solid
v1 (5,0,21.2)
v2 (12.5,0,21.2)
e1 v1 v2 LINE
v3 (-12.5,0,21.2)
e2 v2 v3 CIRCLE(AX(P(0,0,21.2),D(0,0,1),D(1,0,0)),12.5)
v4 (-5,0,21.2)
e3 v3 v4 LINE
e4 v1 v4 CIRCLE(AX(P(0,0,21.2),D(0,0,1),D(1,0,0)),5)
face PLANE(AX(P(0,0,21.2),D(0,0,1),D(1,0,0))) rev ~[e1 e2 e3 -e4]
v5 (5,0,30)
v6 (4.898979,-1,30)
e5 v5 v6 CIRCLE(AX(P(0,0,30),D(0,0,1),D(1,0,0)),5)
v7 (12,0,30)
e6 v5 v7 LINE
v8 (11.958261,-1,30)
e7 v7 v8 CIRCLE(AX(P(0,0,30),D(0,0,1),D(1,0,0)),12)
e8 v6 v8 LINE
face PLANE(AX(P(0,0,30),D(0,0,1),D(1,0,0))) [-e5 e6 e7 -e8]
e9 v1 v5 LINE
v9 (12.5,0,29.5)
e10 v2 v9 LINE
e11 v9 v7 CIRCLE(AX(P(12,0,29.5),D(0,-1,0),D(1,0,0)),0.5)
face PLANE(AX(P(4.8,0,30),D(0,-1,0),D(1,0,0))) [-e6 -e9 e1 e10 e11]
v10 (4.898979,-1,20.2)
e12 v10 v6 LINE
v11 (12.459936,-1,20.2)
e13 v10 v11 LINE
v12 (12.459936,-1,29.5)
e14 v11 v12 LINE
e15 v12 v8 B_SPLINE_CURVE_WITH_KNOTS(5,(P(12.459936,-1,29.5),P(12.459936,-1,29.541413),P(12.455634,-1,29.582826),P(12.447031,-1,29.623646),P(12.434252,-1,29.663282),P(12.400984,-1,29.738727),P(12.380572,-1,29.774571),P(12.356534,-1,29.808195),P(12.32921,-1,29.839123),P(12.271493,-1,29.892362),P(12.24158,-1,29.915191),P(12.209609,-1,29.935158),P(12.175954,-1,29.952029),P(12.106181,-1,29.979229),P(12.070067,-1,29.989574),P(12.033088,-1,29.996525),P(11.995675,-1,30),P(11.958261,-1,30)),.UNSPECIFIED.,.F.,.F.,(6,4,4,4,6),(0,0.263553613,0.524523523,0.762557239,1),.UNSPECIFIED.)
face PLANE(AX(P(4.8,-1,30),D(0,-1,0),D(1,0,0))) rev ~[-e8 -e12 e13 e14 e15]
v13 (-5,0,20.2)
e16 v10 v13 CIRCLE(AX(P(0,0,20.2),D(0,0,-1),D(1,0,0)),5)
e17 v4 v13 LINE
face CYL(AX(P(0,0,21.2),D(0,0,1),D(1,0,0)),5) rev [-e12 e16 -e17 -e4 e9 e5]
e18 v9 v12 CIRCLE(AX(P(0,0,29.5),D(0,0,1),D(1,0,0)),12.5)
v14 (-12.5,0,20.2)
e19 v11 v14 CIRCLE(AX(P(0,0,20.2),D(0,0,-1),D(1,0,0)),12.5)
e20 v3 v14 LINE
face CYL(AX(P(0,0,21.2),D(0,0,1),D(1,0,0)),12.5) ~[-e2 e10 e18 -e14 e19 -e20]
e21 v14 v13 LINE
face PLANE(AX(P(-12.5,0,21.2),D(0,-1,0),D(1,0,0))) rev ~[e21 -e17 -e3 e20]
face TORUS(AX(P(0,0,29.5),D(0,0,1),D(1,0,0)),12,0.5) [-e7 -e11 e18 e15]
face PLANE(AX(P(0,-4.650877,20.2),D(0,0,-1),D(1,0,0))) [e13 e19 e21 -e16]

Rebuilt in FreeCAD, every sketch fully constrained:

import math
import FreeCAD as App
import Part
import Sketcher


def edges_at(feature, points):
    """Names of the edges that pass closest to the given points."""
    edges = feature.Shape.Edges
    near = lambda p: min(range(len(edges)), key=lambda i: edges[i].distToShape(Part.Vertex(*p))[0])
    return sorted({f"Edge{near(p) + 1}" for p in points})


def add_polygon(sketch, points):
    """Adds a closed chain of lines whose ends are joined by coincident constraints."""
    first, n = sketch.GeometryCount, len(points)
    for a, b in zip(points, points[1:] + points[:1]):
        sketch.addGeometry(Part.LineSegment(App.Vector(*a, 0), App.Vector(*b, 0)), False)
    for i in range(n):
        sketch.addConstraint(Sketcher.Constraint("Coincident", first + i, 2, first + (i + 1) % n, 1))

doc = App.newDocument("Part")
params = doc.addObject("Spreadsheet::Sheet", "Params")
for row, (alias, value) in enumerate([
    ("sketch1_diameter", "25 mm"),
    ("sketch1_diameter2", "10 mm"),
    ("pad1_length", "8.8 mm"),
    ("sketch2_radius", "5 mm"),
    ("sketch2_radius2", "12.5 mm"),
    ("pad2_length", "1 mm"),
    ("fillet_radius", "0.5 mm"),
    ("sketch3_height", "1 mm"),
    ("sketch3_width", "7.8 mm"),
    ("pocket1_length", "9.8 mm"),
], start=1):
    params.set(f"A{row}", alias)
    params.set(f"B{row}", "=" + value)
    params.setAlias(f"B{row}", alias)

body = doc.addObject("PartDesign::Body", "Body")

# Sketch on XY plane
sketch1 = doc.addObject("Sketcher::SketchObject", "Sketch")
body.addObject(sketch1)
sketch1.AttachmentSupport = (doc.XY_Plane, [""])
sketch1.MapMode = "FlatFace"
sketch1.AttachmentOffset = App.Placement(App.Vector(0, 0, 21.2), App.Rotation())
sketch1.addGeometry(Part.Circle(App.Vector(0, 0, 0), App.Vector(0, 0, 1), 12), False)
sketch1.addGeometry(Part.Circle(App.Vector(0, 0, 0), App.Vector(0, 0, 1), 5), False)
sketch1.addConstraint(Sketcher.Constraint("Coincident", 0, 3, -1, 1))
sketch1.addConstraint(Sketcher.Constraint("Coincident", 1, 3, -1, 1))
sketch1.addConstraint(Sketcher.Constraint("Diameter", 0, 25.0))
sketch1.addConstraint(Sketcher.Constraint("Diameter", 1, 10.0))
sketch1.setExpression("Constraints[2]", "Params.sketch1_diameter")
sketch1.setExpression("Constraints[3]", "Params.sketch1_diameter2")
pad1 = doc.addObject("PartDesign::Pad", "Pad")
body.addObject(pad1)
pad1.Profile = sketch1
pad1.setExpression("Length", "Params.pad1_length")

# Sketch on XY plane
sketch2 = doc.addObject("Sketcher::SketchObject", "Sketch001")
body.addObject(sketch2)
sketch2.AttachmentSupport = (doc.XY_Plane, [""])
sketch2.MapMode = "FlatFace"
sketch2.AttachmentOffset = App.Placement(App.Vector(0, 0, 21.2), App.Rotation())
sketch2.addGeometry(Part.ArcOfCircle(Part.Circle(App.Vector(0, 0, 0), App.Vector(0, 0, 1), 12), math.radians(180), math.radians(360)), False)
sketch2.addGeometry(Part.LineSegment(App.Vector(-12, 0, 0), App.Vector(-5, 0, 0)), False)
sketch2.addGeometry(Part.ArcOfCircle(Part.Circle(App.Vector(0, 0, 0), App.Vector(0, 0, 1), 5), math.radians(180), math.radians(360)), False)
sketch2.addGeometry(Part.LineSegment(App.Vector(5, 0, 0), App.Vector(12, 0, 0)), False)
sketch2.addConstraint(Sketcher.Constraint("Coincident", 0, 1, 1, 1))
sketch2.addConstraint(Sketcher.Constraint("Coincident", 1, 2, 2, 1))
sketch2.addConstraint(Sketcher.Constraint("Coincident", 2, 2, 3, 1))
sketch2.addConstraint(Sketcher.Constraint("Coincident", 3, 2, 0, 2))
sketch2.addConstraint(Sketcher.Constraint("Horizontal", 1))
sketch2.addConstraint(Sketcher.Constraint("Horizontal", 3))
sketch2.addConstraint(Sketcher.Constraint("Coincident", 0, 3, -1, 1))
sketch2.addConstraint(Sketcher.Constraint("Coincident", 2, 3, -1, 1))
sketch2.addConstraint(Sketcher.Constraint("PointOnObject", 0, 1, -1))
sketch2.addConstraint(Sketcher.Constraint("PointOnObject", 2, 2, -1))
sketch2.addConstraint(Sketcher.Constraint("Radius", 2, 5.0))
sketch2.addConstraint(Sketcher.Constraint("Radius", 0, 12.5))
sketch2.setExpression("Constraints[10]", "Params.sketch2_radius")
sketch2.setExpression("Constraints[11]", "Params.sketch2_radius2")
pad2 = doc.addObject("PartDesign::Pad", "Pad001")
body.addObject(pad2)
pad2.Profile = sketch2
pad2.setExpression("Length", "Params.pad2_length")
pad2.Reversed = True
doc.recompute()

fillet = doc.addObject("PartDesign::Fillet", "Fillet")
body.addObject(fillet)
fillet.Base = (pad2, edges_at(pad2, [(-12.5, 0, 30)]))
fillet.setExpression("Radius", "Params.fillet_radius")

# Sketch on XY plane
sketch3 = doc.addObject("Sketcher::SketchObject", "Sketch002")
body.addObject(sketch3)
sketch3.AttachmentSupport = (doc.XY_Plane, [""])
sketch3.MapMode = "FlatFace"
sketch3.AttachmentOffset = App.Placement(App.Vector(0, 0, 30), App.Rotation())
add_polygon(sketch3, [(4.8, 0), (4.8, -1), (12.6, -1), (12.6, 0)])  # lines 0-3
sketch3.addConstraint(Sketcher.Constraint("Vertical", 0))
sketch3.addConstraint(Sketcher.Constraint("Horizontal", 1))
sketch3.addConstraint(Sketcher.Constraint("Vertical", 2))
sketch3.addConstraint(Sketcher.Constraint("Horizontal", 3))
sketch3.addConstraint(Sketcher.Constraint("PointOnObject", 2, 2, -1))
sketch3.addConstraint(Sketcher.Constraint("DistanceY", 0, 2, 0, 1, 1.0))
sketch3.addConstraint(Sketcher.Constraint("DistanceX", 1, 1, 1, 2, 7.8))
sketch3.addConstraint(Sketcher.Constraint("DistanceX", -1, 1, 0, 2, 4.8))
sketch3.setExpression("Constraints[9]", "Params.sketch3_height")
sketch3.setExpression("Constraints[10]", "Params.sketch3_width")
pocket1 = doc.addObject("PartDesign::Pocket", "Pocket")
body.addObject(pocket1)
pocket1.Profile = sketch3
pocket1.setExpression("Length", "Params.pocket1_length")

doc.recompute()
